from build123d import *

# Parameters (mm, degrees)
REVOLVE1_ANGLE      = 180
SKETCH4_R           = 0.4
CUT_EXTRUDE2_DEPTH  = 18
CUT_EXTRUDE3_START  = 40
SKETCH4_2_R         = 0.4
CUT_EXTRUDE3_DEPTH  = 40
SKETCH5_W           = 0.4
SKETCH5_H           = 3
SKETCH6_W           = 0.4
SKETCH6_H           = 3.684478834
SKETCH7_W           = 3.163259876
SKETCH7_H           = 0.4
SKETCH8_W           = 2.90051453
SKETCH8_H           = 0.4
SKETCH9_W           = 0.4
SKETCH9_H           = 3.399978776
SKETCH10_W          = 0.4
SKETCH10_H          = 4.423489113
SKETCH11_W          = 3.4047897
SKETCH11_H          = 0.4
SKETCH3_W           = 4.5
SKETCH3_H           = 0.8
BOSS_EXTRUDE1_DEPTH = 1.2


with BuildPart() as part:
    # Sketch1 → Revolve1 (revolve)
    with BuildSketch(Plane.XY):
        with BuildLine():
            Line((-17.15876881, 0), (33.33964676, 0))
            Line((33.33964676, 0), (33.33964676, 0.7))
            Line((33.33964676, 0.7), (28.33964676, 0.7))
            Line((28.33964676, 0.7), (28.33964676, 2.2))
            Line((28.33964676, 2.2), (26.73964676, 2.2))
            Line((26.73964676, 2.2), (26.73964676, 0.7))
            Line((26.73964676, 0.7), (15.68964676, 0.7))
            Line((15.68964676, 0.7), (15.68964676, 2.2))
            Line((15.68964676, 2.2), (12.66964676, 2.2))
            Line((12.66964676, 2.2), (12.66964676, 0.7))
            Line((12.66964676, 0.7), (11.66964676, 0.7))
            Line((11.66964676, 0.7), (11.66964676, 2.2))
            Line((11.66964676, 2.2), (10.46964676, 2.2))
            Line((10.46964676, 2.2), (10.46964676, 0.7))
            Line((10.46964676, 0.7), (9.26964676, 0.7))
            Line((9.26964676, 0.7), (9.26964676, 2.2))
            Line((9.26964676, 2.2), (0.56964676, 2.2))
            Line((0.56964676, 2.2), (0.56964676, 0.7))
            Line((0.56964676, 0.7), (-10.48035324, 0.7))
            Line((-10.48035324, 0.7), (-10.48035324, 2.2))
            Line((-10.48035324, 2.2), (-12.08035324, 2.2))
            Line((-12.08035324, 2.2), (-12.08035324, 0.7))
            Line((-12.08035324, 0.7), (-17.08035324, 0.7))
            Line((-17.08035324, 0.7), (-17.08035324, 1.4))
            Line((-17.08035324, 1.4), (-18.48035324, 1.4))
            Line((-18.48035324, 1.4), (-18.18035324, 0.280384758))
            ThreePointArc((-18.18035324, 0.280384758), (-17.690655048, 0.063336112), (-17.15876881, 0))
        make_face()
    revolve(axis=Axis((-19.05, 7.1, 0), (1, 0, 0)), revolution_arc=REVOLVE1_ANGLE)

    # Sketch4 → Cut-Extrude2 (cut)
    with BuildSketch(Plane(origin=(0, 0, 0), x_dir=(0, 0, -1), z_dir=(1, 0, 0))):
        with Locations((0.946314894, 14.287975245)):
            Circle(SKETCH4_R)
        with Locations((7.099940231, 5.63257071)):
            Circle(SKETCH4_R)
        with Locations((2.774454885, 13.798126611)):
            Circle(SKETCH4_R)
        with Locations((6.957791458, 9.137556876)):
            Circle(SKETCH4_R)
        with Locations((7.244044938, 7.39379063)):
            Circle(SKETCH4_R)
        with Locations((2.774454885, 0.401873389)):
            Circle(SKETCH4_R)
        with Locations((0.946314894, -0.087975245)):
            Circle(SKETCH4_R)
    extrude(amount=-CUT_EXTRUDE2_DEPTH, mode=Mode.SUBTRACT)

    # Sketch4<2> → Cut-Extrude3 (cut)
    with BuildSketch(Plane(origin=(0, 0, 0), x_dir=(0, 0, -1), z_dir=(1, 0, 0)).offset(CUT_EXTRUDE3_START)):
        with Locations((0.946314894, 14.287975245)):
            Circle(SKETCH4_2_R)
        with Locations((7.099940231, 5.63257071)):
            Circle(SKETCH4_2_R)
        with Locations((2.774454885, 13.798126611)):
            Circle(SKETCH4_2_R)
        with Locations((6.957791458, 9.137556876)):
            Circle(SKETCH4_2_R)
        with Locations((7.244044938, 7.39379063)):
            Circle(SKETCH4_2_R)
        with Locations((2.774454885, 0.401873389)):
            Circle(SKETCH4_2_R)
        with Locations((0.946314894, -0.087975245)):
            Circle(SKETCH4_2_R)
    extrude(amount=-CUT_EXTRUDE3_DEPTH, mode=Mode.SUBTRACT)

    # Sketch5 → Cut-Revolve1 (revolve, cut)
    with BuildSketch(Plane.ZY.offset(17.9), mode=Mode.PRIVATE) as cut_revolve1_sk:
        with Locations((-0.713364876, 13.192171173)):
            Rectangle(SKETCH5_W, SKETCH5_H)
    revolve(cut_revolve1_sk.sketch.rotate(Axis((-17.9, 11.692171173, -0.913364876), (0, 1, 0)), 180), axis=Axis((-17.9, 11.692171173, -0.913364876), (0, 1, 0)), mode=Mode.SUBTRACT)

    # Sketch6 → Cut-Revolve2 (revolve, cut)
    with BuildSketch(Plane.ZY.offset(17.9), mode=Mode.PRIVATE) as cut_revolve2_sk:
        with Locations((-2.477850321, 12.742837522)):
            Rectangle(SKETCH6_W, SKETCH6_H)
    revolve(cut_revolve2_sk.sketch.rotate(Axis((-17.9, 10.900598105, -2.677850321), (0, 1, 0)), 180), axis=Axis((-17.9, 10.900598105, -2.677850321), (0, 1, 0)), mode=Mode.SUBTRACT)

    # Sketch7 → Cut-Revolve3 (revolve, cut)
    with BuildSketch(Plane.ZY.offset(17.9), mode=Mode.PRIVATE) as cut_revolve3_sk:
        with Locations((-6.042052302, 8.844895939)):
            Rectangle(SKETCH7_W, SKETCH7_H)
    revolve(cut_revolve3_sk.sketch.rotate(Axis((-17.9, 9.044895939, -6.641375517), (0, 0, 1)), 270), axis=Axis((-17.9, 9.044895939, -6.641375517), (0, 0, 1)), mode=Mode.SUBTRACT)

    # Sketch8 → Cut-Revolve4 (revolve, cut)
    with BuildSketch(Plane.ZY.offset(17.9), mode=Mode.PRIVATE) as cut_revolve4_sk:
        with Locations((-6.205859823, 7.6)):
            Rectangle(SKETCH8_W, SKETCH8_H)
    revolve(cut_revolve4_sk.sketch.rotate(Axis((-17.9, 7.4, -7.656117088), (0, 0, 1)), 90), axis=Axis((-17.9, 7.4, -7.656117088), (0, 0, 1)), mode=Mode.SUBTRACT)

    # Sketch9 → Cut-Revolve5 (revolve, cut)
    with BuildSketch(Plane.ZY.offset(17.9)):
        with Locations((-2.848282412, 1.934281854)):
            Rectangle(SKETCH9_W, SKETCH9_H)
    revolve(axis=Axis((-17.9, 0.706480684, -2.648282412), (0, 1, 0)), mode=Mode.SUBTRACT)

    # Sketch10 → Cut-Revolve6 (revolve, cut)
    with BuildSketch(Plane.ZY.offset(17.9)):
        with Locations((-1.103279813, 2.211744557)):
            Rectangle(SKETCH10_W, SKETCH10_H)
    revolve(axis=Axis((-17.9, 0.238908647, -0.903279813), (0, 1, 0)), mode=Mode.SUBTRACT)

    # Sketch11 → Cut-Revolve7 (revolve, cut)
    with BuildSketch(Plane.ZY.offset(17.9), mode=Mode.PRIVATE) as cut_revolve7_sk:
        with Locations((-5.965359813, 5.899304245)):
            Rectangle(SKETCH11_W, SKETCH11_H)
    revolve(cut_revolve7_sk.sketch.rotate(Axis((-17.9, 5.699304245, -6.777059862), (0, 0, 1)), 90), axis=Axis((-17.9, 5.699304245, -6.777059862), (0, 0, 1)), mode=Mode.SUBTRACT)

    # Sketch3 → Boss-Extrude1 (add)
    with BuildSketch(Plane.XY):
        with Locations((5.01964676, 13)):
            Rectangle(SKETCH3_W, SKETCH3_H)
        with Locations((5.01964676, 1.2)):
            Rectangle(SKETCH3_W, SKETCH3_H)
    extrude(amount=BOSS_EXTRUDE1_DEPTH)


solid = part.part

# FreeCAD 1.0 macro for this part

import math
import FreeCAD as App
import Part
import Sketcher
Q = App.Units.Quantity

doc = App.newDocument("Part")
body = doc.addObject("PartDesign::Body", "Body")

# Sketch on XY plane
sketch1 = doc.addObject("Sketcher::SketchObject", "Sketch")
body.addObject(sketch1)
sketch1.AttachmentSupport = (doc.XY_Plane, [""])
sketch1.MapMode = "FlatFace"
sketch1.addGeometry([
    Part.LineSegment(App.Vector(-17.158769, 0, 0), App.Vector(33.339647, 0, 0)),  # 0
    Part.LineSegment(App.Vector(33.339647, 0, 0), App.Vector(33.339647, 0.7, 0)),  # 1
    Part.LineSegment(App.Vector(33.339647, 0.7, 0), App.Vector(28.339647, 0.7, 0)),  # 2
    Part.LineSegment(App.Vector(28.339647, 0.7, 0), App.Vector(28.339647, 2.2, 0)),  # 3
    Part.LineSegment(App.Vector(28.339647, 2.2, 0), App.Vector(26.739647, 2.2, 0)),  # 4
    Part.LineSegment(App.Vector(26.739647, 2.2, 0), App.Vector(26.739647, 0.7, 0)),  # 5
    Part.LineSegment(App.Vector(26.739647, 0.7, 0), App.Vector(15.689647, 0.7, 0)),  # 6
    Part.LineSegment(App.Vector(15.689647, 0.7, 0), App.Vector(15.689647, 2.2, 0)),  # 7
    Part.LineSegment(App.Vector(15.689647, 2.2, 0), App.Vector(12.669647, 2.2, 0)),  # 8
    Part.LineSegment(App.Vector(12.669647, 2.2, 0), App.Vector(12.669647, 0.7, 0)),  # 9
    Part.LineSegment(App.Vector(12.669647, 0.7, 0), App.Vector(11.669647, 0.7, 0)),  # 10
    Part.LineSegment(App.Vector(11.669647, 0.7, 0), App.Vector(11.669647, 2.2, 0)),  # 11
    Part.LineSegment(App.Vector(11.669647, 2.2, 0), App.Vector(10.469647, 2.2, 0)),  # 12
    Part.LineSegment(App.Vector(10.469647, 2.2, 0), App.Vector(10.469647, 0.7, 0)),  # 13
    Part.LineSegment(App.Vector(10.469647, 0.7, 0), App.Vector(9.269647, 0.7, 0)),  # 14
    Part.LineSegment(App.Vector(9.269647, 0.7, 0), App.Vector(9.269647, 2.2, 0)),  # 15
    Part.LineSegment(App.Vector(9.269647, 2.2, 0), App.Vector(0.569647, 2.2, 0)),  # 16
    Part.LineSegment(App.Vector(0.569647, 2.2, 0), App.Vector(0.569647, 0.7, 0)),  # 17
    Part.LineSegment(App.Vector(0.569647, 0.7, 0), App.Vector(-10.480353, 0.7, 0)),  # 18
    Part.LineSegment(App.Vector(-10.480353, 0.7, 0), App.Vector(-10.480353, 2.2, 0)),  # 19
    Part.LineSegment(App.Vector(-10.480353, 2.2, 0), App.Vector(-12.080353, 2.2, 0)),  # 20
    Part.LineSegment(App.Vector(-12.080353, 2.2, 0), App.Vector(-12.080353, 0.7, 0)),  # 21
    Part.LineSegment(App.Vector(-12.080353, 0.7, 0), App.Vector(-17.080353, 0.7, 0)),  # 22
    Part.LineSegment(App.Vector(-17.080353, 0.7, 0), App.Vector(-17.080353, 1.4, 0)),  # 23
    Part.LineSegment(App.Vector(-17.080353, 1.4, 0), App.Vector(-18.480353, 1.4, 0)),  # 24
    Part.LineSegment(App.Vector(-18.480353, 1.4, 0), App.Vector(-18.180353, 0.280385, 0)),  # 25
    Part.ArcOfCircle(Part.Circle(App.Vector(-17.214244, 1.799145, 0), App.Vector(0, 0, 1), 1.8), math.radians(-122.461141), math.radians(-88.233897)),  # 26
], False)
sketch1.addGeometry(Part.LineSegment(App.Vector(-18.480353, 7.1, 0), App.Vector(33.339647, 7.1, 0)), True)  # axis
sketch1.addConstraint([
    Sketcher.Constraint("Coincident", 0, 2, 1, 1),
    Sketcher.Constraint("Coincident", 1, 2, 2, 1),
    Sketcher.Constraint("Coincident", 2, 2, 3, 1),
    Sketcher.Constraint("Coincident", 3, 2, 4, 1),
    Sketcher.Constraint("Coincident", 4, 2, 5, 1),
    Sketcher.Constraint("Coincident", 5, 2, 6, 1),
    Sketcher.Constraint("Coincident", 6, 2, 7, 1),
    Sketcher.Constraint("Coincident", 7, 2, 8, 1),
    Sketcher.Constraint("Coincident", 8, 2, 9, 1),
    Sketcher.Constraint("Coincident", 9, 2, 10, 1),
    Sketcher.Constraint("Coincident", 10, 2, 11, 1),
    Sketcher.Constraint("Coincident", 11, 2, 12, 1),
    Sketcher.Constraint("Coincident", 12, 2, 13, 1),
    Sketcher.Constraint("Coincident", 13, 2, 14, 1),
    Sketcher.Constraint("Coincident", 14, 2, 15, 1),
    Sketcher.Constraint("Coincident", 15, 2, 16, 1),
    Sketcher.Constraint("Coincident", 16, 2, 17, 1),
    Sketcher.Constraint("Coincident", 17, 2, 18, 1),
    Sketcher.Constraint("Coincident", 18, 2, 19, 1),
    Sketcher.Constraint("Coincident", 19, 2, 20, 1),
    Sketcher.Constraint("Coincident", 20, 2, 21, 1),
    Sketcher.Constraint("Coincident", 21, 2, 22, 1),
    Sketcher.Constraint("Coincident", 22, 2, 23, 1),
    Sketcher.Constraint("Coincident", 23, 2, 24, 1),
    Sketcher.Constraint("Coincident", 24, 2, 25, 1),
    Sketcher.Constraint("Coincident", 25, 2, 26, 1),
    Sketcher.Constraint("Coincident", 26, 2, 0, 1),
    Sketcher.Constraint("Horizontal", 0),
    Sketcher.Constraint("Vertical", 1),
    Sketcher.Constraint("Horizontal", 2),
    Sketcher.Constraint("Vertical", 3),
    Sketcher.Constraint("Horizontal", 4),
    Sketcher.Constraint("Vertical", 5),
    Sketcher.Constraint("Horizontal", 6),
    Sketcher.Constraint("Vertical", 7),
    Sketcher.Constraint("Horizontal", 8),
    Sketcher.Constraint("Vertical", 9),
    Sketcher.Constraint("Horizontal", 10),
    Sketcher.Constraint("Vertical", 11),
    Sketcher.Constraint("Horizontal", 12),
    Sketcher.Constraint("Vertical", 13),
    Sketcher.Constraint("Horizontal", 14),
    Sketcher.Constraint("Vertical", 15),
    Sketcher.Constraint("Horizontal", 16),
    Sketcher.Constraint("Vertical", 17),
    Sketcher.Constraint("Horizontal", 18),
    Sketcher.Constraint("Vertical", 19),
    Sketcher.Constraint("Horizontal", 20),
    Sketcher.Constraint("Vertical", 21),
    Sketcher.Constraint("Horizontal", 22),
    Sketcher.Constraint("Vertical", 23),
    Sketcher.Constraint("Horizontal", 24),
    Sketcher.Constraint("Horizontal", 27),
    Sketcher.Constraint("PointOnObject", 0, 2, -1),
    Sketcher.Constraint("Horizontal", 2, 2, 5, 2),
    Sketcher.Constraint("Horizontal", 4, 2, 7, 2),
    Sketcher.Constraint("Horizontal", 6, 2, 9, 2),
    Sketcher.Constraint("Horizontal", 8, 2, 11, 2),
    Sketcher.Constraint("Horizontal", 10, 2, 13, 2),
    Sketcher.Constraint("Horizontal", 12, 2, 15, 2),
    Sketcher.Constraint("Horizontal", 14, 2, 17, 2),
    Sketcher.Constraint("Horizontal", 16, 2, 19, 2),
    Sketcher.Constraint("Horizontal", 18, 2, 21, 2),
    Sketcher.Constraint("Vertical", 24, 2, 27, 1),
    Sketcher.Constraint("Vertical", 1, 2, 27, 2),
    Sketcher.Constraint("Equal", 12, 14),
    Sketcher.Constraint("Equal", 6, 18),
    Sketcher.Constraint("Equal", 4, 20),
    Sketcher.Constraint("Equal", 2, 22),
    Sketcher.Constraint("Equal", 1, 23),
    Sketcher.Constraint("Radius", 26, 1.8),
    Sketcher.Constraint("DistanceX", 2, 2, 2, 1, 5.0),
    Sketcher.Constraint("DistanceX", 10, 2, 10, 1, 1.0),
    Sketcher.Constraint("Angle", 25, Q("-75 deg")),
    Sketcher.Constraint("DistanceX", 4, 2, 4, 1, 1.6),
    Sketcher.Constraint("DistanceX", 12, 2, 12, 1, 1.2),
    Sketcher.Constraint("DistanceX", 16, 2, 16, 1, 8.7),
    Sketcher.Constraint("DistanceX", 24, 2, 24, 1, 1.4),
    Sketcher.Constraint("DistanceY", 1, 1, 1, 2, 0.7),
    Sketcher.Constraint("DistanceY", 3, 1, 3, 2, 1.5),
    Sketcher.Constraint("DistanceX", 6, 2, 6, 1, 11.05),
    Sketcher.Constraint("DistanceX", 8, 2, 8, 1, 3.02),
    Sketcher.Constraint("DistanceY", -1, 1, 27, 1, 7.1),
    Sketcher.Constraint("DistanceX", 24, 2, 25, 2, 0.3),
    Sketcher.Constraint("DistanceX", 0, 1, 0, 2, 50.498416),
    Sketcher.Constraint("DistanceX", 26, 2, -1, 1, 17.158769),
])
revolution = doc.addObject("PartDesign::Revolution", "Revolution")
body.addObject(revolution)
revolution.Profile = sketch1
revolution.ReferenceAxis = (sketch1, ["Axis0"])
revolution.Angle = 180

# Sketch on YZ plane
sketch2 = doc.addObject("Sketcher::SketchObject", "Sketch001")
body.addObject(sketch2)
sketch2.AttachmentSupport = (doc.YZ_Plane, [""])
sketch2.MapMode = "FlatFace"
sketch2.addGeometry([
    Part.Circle(App.Vector(14.287975, -0.946315, 0), App.Vector(0, 0, 1), 0.4),  # 0
    Part.Circle(App.Vector(5.632571, -7.09994, 0), App.Vector(0, 0, 1), 0.4),  # 1
    Part.Circle(App.Vector(13.798127, -2.774455, 0), App.Vector(0, 0, 1), 0.4),  # 2
    Part.Circle(App.Vector(9.137557, -6.957791, 0), App.Vector(0, 0, 1), 0.4),  # 3
    Part.Circle(App.Vector(7.393791, -7.244045, 0), App.Vector(0, 0, 1), 0.4),  # 4
    Part.Circle(App.Vector(0.401873, -2.774455, 0), App.Vector(0, 0, 1), 0.4),  # 5
    Part.Circle(App.Vector(-0.087975, -0.946315, 0), App.Vector(0, 0, 1), 0.4),  # 6
], False)
sketch2.addConstraint([
    Sketcher.Constraint("Equal", 0, 1),
    Sketcher.Constraint("Equal", 1, 2),
    Sketcher.Constraint("Equal", 2, 3),
    Sketcher.Constraint("Equal", 3, 4),
    Sketcher.Constraint("Equal", 4, 5),
    Sketcher.Constraint("Equal", 5, 6),
    Sketcher.Constraint("Horizontal", 2, 3, 5, 3),
    Sketcher.Constraint("Horizontal", 0, 3, 6, 3),
    Sketcher.Constraint("Diameter", 0, 0.8),
    Sketcher.Constraint("DistanceX", 5, 3, 0, 3, 13.886102),
    Sketcher.Constraint("DistanceX", 6, 3, 2, 3, 13.886102),
    Sketcher.Constraint("DistanceX", -1, 1, 1, 3, 5.632571),
    Sketcher.Constraint("DistanceY", 1, 3, -1, 1, 7.09994),
    Sketcher.Constraint("DistanceY", 3, 3, -1, 1, 6.957791),
    Sketcher.Constraint("DistanceX", -1, 1, 4, 3, 7.393791),
    Sketcher.Constraint("DistanceX", 2, 3, 0, 3, 0.489849),
    Sketcher.Constraint("DistanceY", 2, 3, 0, 3, 1.82814),
    Sketcher.Constraint("DistanceX", 3, 3, 2, 3, 4.66057),
    Sketcher.Constraint("DistanceY", 4, 3, 2, 3, 4.46959),
    Sketcher.Constraint("DistanceX", -1, 1, 0, 3, 14.287975),
    Sketcher.Constraint("DistanceY", 0, 3, -1, 1, 0.946315),
])
pocket1 = doc.addObject("PartDesign::Pocket", "Pocket")
body.addObject(pocket1)
pocket1.Profile = sketch2
pocket1.Length = 18

# Sketch on YZ plane
sketch3 = doc.addObject("Sketcher::SketchObject", "Sketch002")
body.addObject(sketch3)
sketch3.AttachmentSupport = (doc.YZ_Plane, [""])
sketch3.MapMode = "FlatFace"
sketch3.AttachmentOffset = App.Placement(App.Vector(0, 0, 40), App.Rotation())
sketch3.addGeometry([
    Part.Circle(App.Vector(14.287975, -0.946315, 0), App.Vector(0, 0, 1), 0.4),  # 0
    Part.Circle(App.Vector(5.632571, -7.09994, 0), App.Vector(0, 0, 1), 0.4),  # 1
    Part.Circle(App.Vector(13.798127, -2.774455, 0), App.Vector(0, 0, 1), 0.4),  # 2
    Part.Circle(App.Vector(9.137557, -6.957791, 0), App.Vector(0, 0, 1), 0.4),  # 3
    Part.Circle(App.Vector(7.393791, -7.244045, 0), App.Vector(0, 0, 1), 0.4),  # 4
    Part.Circle(App.Vector(0.401873, -2.774455, 0), App.Vector(0, 0, 1), 0.4),  # 5
    Part.Circle(App.Vector(-0.087975, -0.946315, 0), App.Vector(0, 0, 1), 0.4),  # 6
], False)
sketch3.addConstraint([
    Sketcher.Constraint("Equal", 0, 1),
    Sketcher.Constraint("Equal", 1, 2),
    Sketcher.Constraint("Equal", 2, 3),
    Sketcher.Constraint("Equal", 3, 4),
    Sketcher.Constraint("Equal", 4, 5),
    Sketcher.Constraint("Equal", 5, 6),
    Sketcher.Constraint("Horizontal", 2, 3, 5, 3),
    Sketcher.Constraint("Horizontal", 0, 3, 6, 3),
    Sketcher.Constraint("Diameter", 0, 0.8),
    Sketcher.Constraint("DistanceX", 5, 3, 0, 3, 13.886102),
    Sketcher.Constraint("DistanceX", 6, 3, 2, 3, 13.886102),
    Sketcher.Constraint("DistanceX", -1, 1, 1, 3, 5.632571),
    Sketcher.Constraint("DistanceY", 1, 3, -1, 1, 7.09994),
    Sketcher.Constraint("DistanceY", 3, 3, -1, 1, 6.957791),
    Sketcher.Constraint("DistanceX", -1, 1, 4, 3, 7.393791),
    Sketcher.Constraint("DistanceX", 2, 3, 0, 3, 0.489849),
    Sketcher.Constraint("DistanceY", 2, 3, 0, 3, 1.82814),
    Sketcher.Constraint("DistanceX", 3, 3, 2, 3, 4.66057),
    Sketcher.Constraint("DistanceY", 4, 3, 2, 3, 4.46959),
    Sketcher.Constraint("DistanceX", -1, 1, 0, 3, 14.287975),
    Sketcher.Constraint("DistanceY", 0, 3, -1, 1, 0.946315),
])
pocket2 = doc.addObject("PartDesign::Pocket", "Pocket001")
body.addObject(pocket2)
pocket2.Profile = sketch3
pocket2.Length = 40

# Sketch on YZ plane
sketch4 = doc.addObject("Sketcher::SketchObject", "Sketch003")
body.addObject(sketch4)
sketch4.AttachmentSupport = (doc.YZ_Plane, [""])
sketch4.MapMode = "FlatFace"
sketch4.AttachmentOffset = App.Placement(App.Vector(0, 0, -17.9), App.Rotation())
sketch4.addGeometry([
    Part.LineSegment(App.Vector(14.692171, -0.913365, 0), App.Vector(11.692171, -0.913365, 0)),
    Part.LineSegment(App.Vector(11.692171, -0.913365, 0), App.Vector(11.692171, -0.513365, 0)),
    Part.LineSegment(App.Vector(11.692171, -0.513365, 0), App.Vector(14.692171, -0.513365, 0)),
    Part.LineSegment(App.Vector(14.692171, -0.513365, 0), App.Vector(14.692171, -0.913365, 0)),
], False)
sketch4.addGeometry(Part.LineSegment(App.Vector(11.692171, -0.913365, 0), App.Vector(14.692171, -0.913365, 0)), True)  # axis
sketch4.addConstraint([
    Sketcher.Constraint("Coincident", 0, 2, 1, 1),
    Sketcher.Constraint("Coincident", 1, 2, 2, 1),
    Sketcher.Constraint("Coincident", 2, 2, 3, 1),
    Sketcher.Constraint("Coincident", 3, 2, 0, 1),
    Sketcher.Constraint("Horizontal", 0),
    Sketcher.Constraint("Vertical", 1),
    Sketcher.Constraint("Horizontal", 2),
    Sketcher.Constraint("Vertical", 3),
    Sketcher.Constraint("Horizontal", 4),
    Sketcher.Constraint("Coincident", 4, 1, 0, 2),
    Sketcher.Constraint("Vertical", 2, 2, 4, 2),
    Sketcher.Constraint("DistanceX", 0, 2, 0, 1, 3.0),
    Sketcher.Constraint("DistanceY", 1, 1, 1, 2, 0.4),
    Sketcher.Constraint("DistanceX", -1, 1, 0, 2, 11.692171),
    Sketcher.Constraint("DistanceY", 0, 2, -1, 1, 0.913365),
])
groove = doc.addObject("PartDesign::Groove", "Groove")
body.addObject(groove)
groove.Profile = sketch4
groove.ReferenceAxis = (sketch4, ["Axis0"])
groove.Angle = 360

# Sketch on YZ plane
sketch5 = doc.addObject("Sketcher::SketchObject", "Sketch004")
body.addObject(sketch5)
sketch5.AttachmentSupport = (doc.YZ_Plane, [""])
sketch5.MapMode = "FlatFace"
sketch5.AttachmentOffset = App.Placement(App.Vector(0, 0, -17.9), App.Rotation())
sketch5.addGeometry([
    Part.LineSegment(App.Vector(14.585077, -2.67785, 0), App.Vector(10.900598, -2.67785, 0)),
    Part.LineSegment(App.Vector(10.900598, -2.67785, 0), App.Vector(10.900598, -2.27785, 0)),
    Part.LineSegment(App.Vector(10.900598, -2.27785, 0), App.Vector(14.585077, -2.27785, 0)),
    Part.LineSegment(App.Vector(14.585077, -2.27785, 0), App.Vector(14.585077, -2.67785, 0)),
], False)
sketch5.addGeometry(Part.LineSegment(App.Vector(10.900598, -2.67785, 0), App.Vector(14.585077, -2.67785, 0)), True)  # axis
sketch5.addConstraint([
    Sketcher.Constraint("Coincident", 0, 2, 1, 1),
    Sketcher.Constraint("Coincident", 1, 2, 2, 1),
    Sketcher.Constraint("Coincident", 2, 2, 3, 1),
    Sketcher.Constraint("Coincident", 3, 2, 0, 1),
    Sketcher.Constraint("Horizontal", 0),
    Sketcher.Constraint("Vertical", 1),
    Sketcher.Constraint("Horizontal", 2),
    Sketcher.Constraint("Vertical", 3),
    Sketcher.Constraint("Horizontal", 4),
    Sketcher.Constraint("Coincident", 4, 1, 0, 2),
    Sketcher.Constraint("Vertical", 2, 2, 4, 2),
    Sketcher.Constraint("DistanceY", 1, 1, 1, 2, 0.4),
    Sketcher.Constraint("DistanceX", 0, 2, 0, 1, 3.684479),
    Sketcher.Constraint("DistanceX", -1, 1, 0, 2, 10.900598),
    Sketcher.Constraint("DistanceY", 0, 2, -1, 1, 2.67785),
])
groove2 = doc.addObject("PartDesign::Groove", "Groove001")
body.addObject(groove2)
groove2.Profile = sketch5
groove2.ReferenceAxis = (sketch5, ["Axis0"])
groove2.Angle = 360

# Sketch on YZ plane
sketch6 = doc.addObject("Sketcher::SketchObject", "Sketch005")
body.addObject(sketch6)
sketch6.AttachmentSupport = (doc.YZ_Plane, [""])
sketch6.MapMode = "FlatFace"
sketch6.AttachmentOffset = App.Placement(App.Vector(0, 0, -17.9), App.Rotation())
sketch6.addGeometry([
    Part.LineSegment(App.Vector(9.044896, -7.623682, 0), App.Vector(8.644896, -7.623682, 0)),
    Part.LineSegment(App.Vector(8.644896, -7.623682, 0), App.Vector(8.644896, -4.460422, 0)),
    Part.LineSegment(App.Vector(8.644896, -4.460422, 0), App.Vector(9.044896, -4.460422, 0)),
    Part.LineSegment(App.Vector(9.044896, -4.460422, 0), App.Vector(9.044896, -7.623682, 0)),
], False)
sketch6.addGeometry(Part.LineSegment(App.Vector(9.044896, -7.623682, 0), App.Vector(9.044896, -4.460422, 0)), True)  # axis
sketch6.addConstraint([
    Sketcher.Constraint("Coincident", 0, 2, 1, 1),
    Sketcher.Constraint("Coincident", 1, 2, 2, 1),
    Sketcher.Constraint("Coincident", 2, 2, 3, 1),
    Sketcher.Constraint("Coincident", 3, 2, 0, 1),
    Sketcher.Constraint("Horizontal", 0),
    Sketcher.Constraint("Vertical", 1),
    Sketcher.Constraint("Horizontal", 2),
    Sketcher.Constraint("Vertical", 3),
    Sketcher.Constraint("Vertical", 4),
    Sketcher.Constraint("Coincident", 4, 1, 3, 2),
    Sketcher.Constraint("Horizontal", 1, 2, 4, 2),
    Sketcher.Constraint("DistanceX", 0, 2, 0, 1, 0.4),
    Sketcher.Constraint("DistanceY", 1, 1, 1, 2, 3.16326),
    Sketcher.Constraint("DistanceX", -1, 1, 0, 2, 8.644896),
    Sketcher.Constraint("DistanceY", 0, 2, -1, 1, 7.623682),
])
groove3 = doc.addObject("PartDesign::Groove", "Groove002")
body.addObject(groove3)
groove3.Profile = sketch6
groove3.ReferenceAxis = (sketch6, ["Axis0"])
groove3.Angle = 360

# Sketch on YZ plane
sketch7 = doc.addObject("Sketcher::SketchObject", "Sketch006")
body.addObject(sketch7)
sketch7.AttachmentSupport = (doc.YZ_Plane, [""])
sketch7.MapMode = "FlatFace"
sketch7.AttachmentOffset = App.Placement(App.Vector(0, 0, -17.9), App.Rotation())
sketch7.addGeometry([
    Part.LineSegment(App.Vector(7.8, -7.656117, 0), App.Vector(7.4, -7.656117, 0)),
    Part.LineSegment(App.Vector(7.4, -7.656117, 0), App.Vector(7.4, -4.755603, 0)),
    Part.LineSegment(App.Vector(7.4, -4.755603, 0), App.Vector(7.8, -4.755603, 0)),
    Part.LineSegment(App.Vector(7.8, -4.755603, 0), App.Vector(7.8, -7.656117, 0)),
], False)
sketch7.addGeometry(Part.LineSegment(App.Vector(7.4, -7.656117, 0), App.Vector(7.4, -4.755603, 0)), True)  # axis
sketch7.addConstraint([
    Sketcher.Constraint("Coincident", 0, 2, 1, 1),
    Sketcher.Constraint("Coincident", 1, 2, 2, 1),
    Sketcher.Constraint("Coincident", 2, 2, 3, 1),
    Sketcher.Constraint("Coincident", 3, 2, 0, 1),
    Sketcher.Constraint("Horizontal", 0),
    Sketcher.Constraint("Vertical", 1),
    Sketcher.Constraint("Horizontal", 2),
    Sketcher.Constraint("Vertical", 3),
    Sketcher.Constraint("Vertical", 4),
    Sketcher.Constraint("Coincident", 4, 1, 0, 2),
    Sketcher.Constraint("Horizontal", 2, 2, 4, 2),
    Sketcher.Constraint("DistanceX", 0, 2, 0, 1, 0.4),
    Sketcher.Constraint("DistanceX", -1, 1, 0, 2, 7.4),
    Sketcher.Constraint("DistanceY", 1, 1, 1, 2, 2.900515),
    Sketcher.Constraint("DistanceY", 0, 2, -1, 1, 7.656117),
])
groove4 = doc.addObject("PartDesign::Groove", "Groove003")
body.addObject(groove4)
groove4.Profile = sketch7
groove4.ReferenceAxis = (sketch7, ["Axis0"])
groove4.Angle = 360

# Sketch on YZ plane
sketch8 = doc.addObject("Sketcher::SketchObject", "Sketch007")
body.addObject(sketch8)
sketch8.AttachmentSupport = (doc.YZ_Plane, [""])
sketch8.MapMode = "FlatFace"
sketch8.AttachmentOffset = App.Placement(App.Vector(0, 0, -17.9), App.Rotation())
sketch8.addGeometry([
    Part.LineSegment(App.Vector(3.634271, -3.048282, 0), App.Vector(0.234292, -3.048282, 0)),
    Part.LineSegment(App.Vector(0.234292, -3.048282, 0), App.Vector(0.234292, -2.648282, 0)),
    Part.LineSegment(App.Vector(0.234292, -2.648282, 0), App.Vector(3.634271, -2.648282, 0)),
    Part.LineSegment(App.Vector(3.634271, -2.648282, 0), App.Vector(3.634271, -3.048282, 0)),
], False)
sketch8.addGeometry(Part.LineSegment(App.Vector(0.234292, -2.648282, 0), App.Vector(3.634271, -2.648282, 0)), True)  # axis
sketch8.addConstraint([
    Sketcher.Constraint("Coincident", 0, 2, 1, 1),
    Sketcher.Constraint("Coincident", 1, 2, 2, 1),
    Sketcher.Constraint("Coincident", 2, 2, 3, 1),
    Sketcher.Constraint("Coincident", 3, 2, 0, 1),
    Sketcher.Constraint("Horizontal", 0),
    Sketcher.Constraint("Vertical", 1),
    Sketcher.Constraint("Horizontal", 2),
    Sketcher.Constraint("Vertical", 3),
    Sketcher.Constraint("Horizontal", 4),
    Sketcher.Constraint("Coincident", 4, 1, 1, 2),
    Sketcher.Constraint("Vertical", 3, 2, 4, 2),
    Sketcher.Constraint("DistanceY", 1, 1, 1, 2, 0.4),
    Sketcher.Constraint("DistanceX", 0, 2, 0, 1, 3.399979),
    Sketcher.Constraint("DistanceX", -1, 1, 2, 2, 3.634271),
    Sketcher.Constraint("DistanceY", 0, 2, -1, 1, 3.048282),
])
groove5 = doc.addObject("PartDesign::Groove", "Groove004")
body.addObject(groove5)
groove5.Profile = sketch8
groove5.ReferenceAxis = (sketch8, ["Axis0"])
groove5.Angle = 360

# Sketch on YZ plane
sketch9 = doc.addObject("Sketcher::SketchObject", "Sketch008")
body.addObject(sketch9)
sketch9.AttachmentSupport = (doc.YZ_Plane, [""])
sketch9.MapMode = "FlatFace"
sketch9.AttachmentOffset = App.Placement(App.Vector(0, 0, -17.9), App.Rotation())
sketch9.addGeometry([
    Part.LineSegment(App.Vector(4.423489, -1.30328, 0), App.Vector(0, -1.30328, 0)),
    Part.LineSegment(App.Vector(0, -1.30328, 0), App.Vector(0, -0.90328, 0)),
    Part.LineSegment(App.Vector(0, -0.90328, 0), App.Vector(4.423489, -0.90328, 0)),
    Part.LineSegment(App.Vector(4.423489, -0.90328, 0), App.Vector(4.423489, -1.30328, 0)),
], False)
sketch9.addGeometry(Part.LineSegment(App.Vector(0, -0.90328, 0), App.Vector(4.423489, -0.90328, 0)), True)  # axis
sketch9.addConstraint([
    Sketcher.Constraint("Coincident", 0, 2, 1, 1),
    Sketcher.Constraint("Coincident", 1, 2, 2, 1),
    Sketcher.Constraint("Coincident", 2, 2, 3, 1),
    Sketcher.Constraint("Coincident", 3, 2, 0, 1),
    Sketcher.Constraint("Horizontal", 0),
    Sketcher.Constraint("Vertical", 1),
    Sketcher.Constraint("Horizontal", 2),
    Sketcher.Constraint("Vertical", 3),
    Sketcher.Constraint("Horizontal", 4),
    Sketcher.Constraint("Coincident", 4, 1, 1, 2),
    Sketcher.Constraint("PointOnObject", 0, 2, -2),
    Sketcher.Constraint("Vertical", 3, 2, 4, 2),
    Sketcher.Constraint("DistanceY", 1, 1, 1, 2, 0.4),
    Sketcher.Constraint("DistanceX", 0, 2, 0, 1, 4.423489),
    Sketcher.Constraint("DistanceY", 0, 2, -1, 1, 1.30328),
])
groove6 = doc.addObject("PartDesign::Groove", "Groove005")
body.addObject(groove6)
groove6.Profile = sketch9
groove6.ReferenceAxis = (sketch9, ["Axis0"])
groove6.Angle = 360

# Sketch on YZ plane
sketch10 = doc.addObject("Sketcher::SketchObject", "Sketch009")
body.addObject(sketch10)
sketch10.AttachmentSupport = (doc.YZ_Plane, [""])
sketch10.MapMode = "FlatFace"
sketch10.AttachmentOffset = App.Placement(App.Vector(0, 0, -17.9), App.Rotation())
sketch10.addGeometry([
    Part.LineSegment(App.Vector(6.099304, -7.667755, 0), App.Vector(5.699304, -7.667755, 0)),
    Part.LineSegment(App.Vector(5.699304, -7.667755, 0), App.Vector(5.699304, -4.262965, 0)),
    Part.LineSegment(App.Vector(5.699304, -4.262965, 0), App.Vector(6.099304, -4.262965, 0)),
    Part.LineSegment(App.Vector(6.099304, -4.262965, 0), App.Vector(6.099304, -7.667755, 0)),
], False)
sketch10.addGeometry(Part.LineSegment(App.Vector(5.699304, -7.667755, 0), App.Vector(5.699304, -4.262965, 0)), True)  # axis
sketch10.addConstraint([
    Sketcher.Constraint("Coincident", 0, 2, 1, 1),
    Sketcher.Constraint("Coincident", 1, 2, 2, 1),
    Sketcher.Constraint("Coincident", 2, 2, 3, 1),
    Sketcher.Constraint("Coincident", 3, 2, 0, 1),
    Sketcher.Constraint("Horizontal", 0),
    Sketcher.Constraint("Vertical", 1),
    Sketcher.Constraint("Horizontal", 2),
    Sketcher.Constraint("Vertical", 3),
    Sketcher.Constraint("Vertical", 4),
    Sketcher.Constraint("Coincident", 4, 1, 0, 2),
    Sketcher.Constraint("Horizontal", 2, 2, 4, 2),
    Sketcher.Constraint("DistanceX", 0, 2, 0, 1, 0.4),
    Sketcher.Constraint("DistanceY", 1, 1, 1, 2, 3.40479),
    Sketcher.Constraint("DistanceX", -1, 1, 0, 2, 5.699304),
    Sketcher.Constraint("DistanceY", 0, 2, -1, 1, 7.667755),
])
groove7 = doc.addObject("PartDesign::Groove", "Groove006")
body.addObject(groove7)
groove7.Profile = sketch10
groove7.ReferenceAxis = (sketch10, ["Axis0"])
groove7.Angle = 360

# Sketch on XY plane
sketch11 = doc.addObject("Sketcher::SketchObject", "Sketch010")
body.addObject(sketch11)
sketch11.AttachmentSupport = (doc.XY_Plane, [""])
sketch11.MapMode = "FlatFace"
sketch11.addGeometry([
    Part.LineSegment(App.Vector(2.769647, 13.4, 0), App.Vector(2.769647, 12.6, 0)),  # 0
    Part.LineSegment(App.Vector(2.769647, 12.6, 0), App.Vector(7.269647, 12.6, 0)),  # 1
    Part.LineSegment(App.Vector(7.269647, 12.6, 0), App.Vector(7.269647, 13.4, 0)),  # 2
    Part.LineSegment(App.Vector(7.269647, 13.4, 0), App.Vector(2.769647, 13.4, 0)),  # 3
    Part.LineSegment(App.Vector(2.769647, 1.6, 0), App.Vector(2.769647, 0.8, 0)),  # 4
    Part.LineSegment(App.Vector(2.769647, 0.8, 0), App.Vector(7.269647, 0.8, 0)),  # 5
    Part.LineSegment(App.Vector(7.269647, 0.8, 0), App.Vector(7.269647, 1.6, 0)),  # 6
    Part.LineSegment(App.Vector(7.269647, 1.6, 0), App.Vector(2.769647, 1.6, 0)),  # 7
], False)
sketch11.addConstraint([
    Sketcher.Constraint("Coincident", 0, 2, 1, 1),
    Sketcher.Constraint("Coincident", 1, 2, 2, 1),
    Sketcher.Constraint("Coincident", 2, 2, 3, 1),
    Sketcher.Constraint("Coincident", 3, 2, 0, 1),
    Sketcher.Constraint("Coincident", 4, 2, 5, 1),
    Sketcher.Constraint("Coincident", 5, 2, 6, 1),
    Sketcher.Constraint("Coincident", 6, 2, 7, 1),
    Sketcher.Constraint("Coincident", 7, 2, 4, 1),
    Sketcher.Constraint("Vertical", 0),
    Sketcher.Constraint("Horizontal", 1),
    Sketcher.Constraint("Vertical", 2),
    Sketcher.Constraint("Horizontal", 3),
    Sketcher.Constraint("Vertical", 4),
    Sketcher.Constraint("Horizontal", 5),
    Sketcher.Constraint("Vertical", 6),
    Sketcher.Constraint("Horizontal", 7),
    Sketcher.Constraint("Vertical", 3, 2, 4, 2),
    Sketcher.Constraint("Vertical", 2, 2, 5, 2),
    Sketcher.Constraint("Equal", 2, 4),
    Sketcher.Constraint("DistanceX", 1, 1, 1, 2, 4.5),
    Sketcher.Constraint("DistanceY", 0, 2, 0, 1, 0.8),
    Sketcher.Constraint("DistanceY", 6, 2, 1, 2, 11.0),
    Sketcher.Constraint("DistanceY", -1, 1, 0, 2, 12.6),
    Sketcher.Constraint("DistanceX", -1, 1, 0, 2, 2.769647),
])
pad1 = doc.addObject("PartDesign::Pad", "Pad")
body.addObject(pad1)
pad1.Profile = sketch11
pad1.Length = 1.2

doc.recompute()
